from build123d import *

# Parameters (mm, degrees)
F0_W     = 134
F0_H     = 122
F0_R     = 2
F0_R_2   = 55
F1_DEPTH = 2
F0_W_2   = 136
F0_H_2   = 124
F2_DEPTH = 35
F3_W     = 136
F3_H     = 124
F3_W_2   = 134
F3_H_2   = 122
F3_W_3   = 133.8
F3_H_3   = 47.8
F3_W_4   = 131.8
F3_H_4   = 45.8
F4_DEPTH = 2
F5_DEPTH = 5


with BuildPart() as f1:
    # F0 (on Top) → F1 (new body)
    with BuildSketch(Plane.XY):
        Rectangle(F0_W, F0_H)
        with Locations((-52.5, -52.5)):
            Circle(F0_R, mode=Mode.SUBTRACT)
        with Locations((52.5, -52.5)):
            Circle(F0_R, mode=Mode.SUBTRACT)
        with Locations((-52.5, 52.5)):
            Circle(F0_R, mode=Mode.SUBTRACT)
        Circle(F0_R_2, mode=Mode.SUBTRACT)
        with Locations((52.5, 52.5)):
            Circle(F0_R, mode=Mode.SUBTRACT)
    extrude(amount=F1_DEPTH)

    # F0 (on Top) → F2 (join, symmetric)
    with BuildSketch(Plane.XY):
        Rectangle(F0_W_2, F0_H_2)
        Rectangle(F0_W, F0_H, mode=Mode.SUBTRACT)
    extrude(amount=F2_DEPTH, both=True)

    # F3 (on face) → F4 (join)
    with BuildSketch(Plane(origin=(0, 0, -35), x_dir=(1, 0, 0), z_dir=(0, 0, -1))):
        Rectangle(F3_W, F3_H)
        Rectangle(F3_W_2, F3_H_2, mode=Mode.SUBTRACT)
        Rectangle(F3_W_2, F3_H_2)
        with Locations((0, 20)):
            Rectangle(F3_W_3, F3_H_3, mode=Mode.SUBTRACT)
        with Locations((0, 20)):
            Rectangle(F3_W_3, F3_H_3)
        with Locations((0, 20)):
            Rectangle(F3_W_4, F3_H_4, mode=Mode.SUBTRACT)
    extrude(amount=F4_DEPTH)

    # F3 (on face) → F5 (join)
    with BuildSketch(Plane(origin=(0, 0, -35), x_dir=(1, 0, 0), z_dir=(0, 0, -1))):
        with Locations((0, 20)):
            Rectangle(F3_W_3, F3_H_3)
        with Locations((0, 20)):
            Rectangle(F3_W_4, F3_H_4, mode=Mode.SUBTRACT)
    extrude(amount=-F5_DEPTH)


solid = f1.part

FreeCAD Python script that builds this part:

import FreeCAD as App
import Part
import Sketcher
from FreeCAD import Vector
Q = App.Units.Quantity


def add_polygon(sketch, points):
    """Adds a closed chain of lines whose ends are joined by coincident constraints."""
    first, n = sketch.GeometryCount, len(points)
    for a, b in zip(points, points[1:] + points[:1]):
        sketch.addGeometry(Part.LineSegment(App.Vector(*a, 0), App.Vector(*b, 0)), False)
    for i in range(n):
        sketch.addConstraint(Sketcher.Constraint("Coincident", first + i, 2, first + (i + 1) % n, 1))

doc = App.newDocument("Part")
params = doc.addObject("Spreadsheet::Sheet", "Params")
for row, (alias, value) in enumerate([
    ("sketch1_diameter", "4 mm"),
    ("sketch1_diameter2", "110 mm"),
    ("sketch1_width", "134 mm"),
    ("sketch1_height", "122 mm"),
    ("pad1_length", "2 mm"),
    ("sketch2_width", "136 mm"),
    ("sketch2_width2", "134 mm"),
    ("sketch2_height", "124 mm"),
    ("sketch2_height2", "122 mm"),
    ("pad2_length", "70 mm"),
    ("sketch3_width", "136 mm"),
    ("sketch3_height", "124 mm"),
    ("sketch3_width2", "131.8 mm"),
    ("sketch3_height2", "45.8 mm"),
    ("pad3_length", "2 mm"),
    ("sketch4_width", "133.8 mm"),
    ("sketch4_width2", "131.8 mm"),
    ("sketch4_height", "47.8 mm"),
    ("sketch4_height2", "45.8 mm"),
    ("pad4_length", "5 mm"),
], start=1):
    params.set(f"A{row}", alias)
    params.set(f"B{row}", "=" + value)
    params.setAlias(f"B{row}", alias)

body = doc.addObject("PartDesign::Body", "Body")

sketch1 = body.newObject("Sketcher::SketchObject", "Sketch")
sketch1.AttachmentSupport = (doc.getObject("XY_Plane"), [""])
sketch1.MapMode = "FlatFace"
add_polygon(sketch1, [(-67, 61), (-67, -61), (67, -61), (67, 61)])
sketch1.addGeometry(Part.Circle(Vector(-52.5, -52.5, 0), Vector(0, 0, 1), 2), False)
sketch1.addGeometry(Part.Circle(Vector(52.5, -52.5, 0), Vector(0, 0, 1), 2), False)
sketch1.addGeometry(Part.Circle(Vector(-52.5, 52.5, 0), Vector(0, 0, 1), 2), False)
sketch1.addGeometry(Part.Circle(Vector(0, 0, 0), Vector(0, 0, 1), 55), False)
sketch1.addGeometry(Part.Circle(Vector(52.5, 52.5, 0), Vector(0, 0, 1), 2), False)
sketch1.addConstraint([
    Sketcher.Constraint("Vertical", 0),
    Sketcher.Constraint("Horizontal", 1),
    Sketcher.Constraint("Vertical", 2),
    Sketcher.Constraint("Horizontal", 3),
    Sketcher.Constraint("Coincident", 7, 3, -1, 1),
    Sketcher.Constraint("Equal", 4, 5),
    Sketcher.Constraint("Equal", 5, 6),
    Sketcher.Constraint("Equal", 6, 8),
    Sketcher.Constraint("Symmetric", 5, 3, 6, 3, -1, 1),
    Sketcher.Constraint("Symmetric", 4, 3, 8, 3, -1, 1),
    Sketcher.Constraint("Symmetric", 0, 2, 2, 2, -1, 1),
    Sketcher.Constraint("Symmetric", 4, 3, 5, 3, -2),
    Sketcher.Constraint("Diameter", 4, Q("4 mm")),
    Sketcher.Constraint("Diameter", 7, Q("110 mm")),
    Sketcher.Constraint("DistanceX", 1, 1, 1, 2, Q("134 mm")),
    Sketcher.Constraint("DistanceY", 0, 2, 0, 1, Q("122 mm")),
    Sketcher.Constraint("DistanceX", 4, 3, 5, 3, Q("105 mm")),
    Sketcher.Constraint("DistanceY", 4, 3, 6, 3, Q("105 mm")),
])
sketch1.setExpression("Constraints[16]", "Params.sketch1_diameter")
sketch1.setExpression("Constraints[17]", "Params.sketch1_diameter2")
sketch1.setExpression("Constraints[18]", "Params.sketch1_width")
sketch1.setExpression("Constraints[19]", "Params.sketch1_height")
pad1 = body.newObject("PartDesign::Pad", "Pad")
pad1.Profile = sketch1
pad1.setExpression("Length", "Params.pad1_length")

sketch2 = body.newObject("Sketcher::SketchObject", "Sketch001")
sketch2.AttachmentSupport = (doc.getObject("XY_Plane"), [""])
sketch2.MapMode = "FlatFace"
add_polygon(sketch2, [(-68, 62), (-68, -62), (68, -62), (68, 62)])
add_polygon(sketch2, [(67, -61), (-67, -61), (-67, 61), (67, 61)])
sketch2.addConstraint([
    Sketcher.Constraint("Vertical", 0),
    Sketcher.Constraint("Horizontal", 1),
    Sketcher.Constraint("Vertical", 2),
    Sketcher.Constraint("Horizontal", 3),
    Sketcher.Constraint("Horizontal", 4),
    Sketcher.Constraint("Vertical", 5),
    Sketcher.Constraint("Horizontal", 6),
    Sketcher.Constraint("Vertical", 7),
    Sketcher.Constraint("Symmetric", 0, 2, 2, 2, -1, 1),
    Sketcher.Constraint("Symmetric", 4, 2, 6, 2, -1, 1),
    Sketcher.Constraint("DistanceX", 1, 1, 1, 2, Q("136 mm")),
    Sketcher.Constraint("DistanceX", 4, 2, 4, 1, Q("134 mm")),
    Sketcher.Constraint("DistanceY", 0, 2, 0, 1, Q("124 mm")),
    Sketcher.Constraint("DistanceY", 5, 1, 5, 2, Q("122 mm")),
])
sketch2.setExpression("Constraints[18]", "Params.sketch2_width")
sketch2.setExpression("Constraints[19]", "Params.sketch2_width2")
sketch2.setExpression("Constraints[20]", "Params.sketch2_height")
sketch2.setExpression("Constraints[21]", "Params.sketch2_height2")
pad2 = body.newObject("PartDesign::Pad", "Pad001")
pad2.Profile = sketch2
pad2.setExpression("Length", "Params.pad2_length")
pad2.Midplane = True

sketch3 = body.newObject("Sketcher::SketchObject", "Sketch002")
sketch3.AttachmentSupport = (doc.getObject("XY_Plane"), [""])
sketch3.MapMode = "FlatFace"
sketch3.AttachmentOffset = App.Placement(Vector(0, 0, -35), App.Rotation())
add_polygon(sketch3, [(-68, -62), (-68, 62), (68, 62), (68, -62)])
add_polygon(sketch3, [(66, 3), (-66, 3), (-66, -43), (66, -43)])
sketch3.addConstraint([
    Sketcher.Constraint("Vertical", 0),
    Sketcher.Constraint("Horizontal", 1),
    Sketcher.Constraint("Vertical", 2),
    Sketcher.Constraint("Horizontal", 3),
    Sketcher.Constraint("Horizontal", 4),
    Sketcher.Constraint("Vertical", 5),
    Sketcher.Constraint("Horizontal", 6),
    Sketcher.Constraint("Vertical", 7),
    Sketcher.Constraint("Symmetric", 0, 2, 2, 2, -1, 1),
    Sketcher.Constraint("DistanceX", 1, 1, 1, 2, Q("136 mm")),
    Sketcher.Constraint("DistanceY", 0, 1, 0, 2, Q("124 mm")),
    Sketcher.Constraint("DistanceX", 4, 2, 4, 1, Q("131.8 mm")),
    Sketcher.Constraint("DistanceY", 5, 2, 5, 1, Q("45.8 mm")),
    Sketcher.Constraint("DistanceX", 4, 2, -1, 1, Q("65.9 mm")),
    Sketcher.Constraint("DistanceY", -1, 1, 4, 2, Q("2.9 mm")),
])
sketch3.setExpression("Constraints[17]", "Params.sketch3_width")
sketch3.setExpression("Constraints[18]", "Params.sketch3_height")
sketch3.setExpression("Constraints[19]", "Params.sketch3_width2")
sketch3.setExpression("Constraints[20]", "Params.sketch3_height2")
pad3 = body.newObject("PartDesign::Pad", "Pad002")
pad3.Profile = sketch3
pad3.setExpression("Length", "Params.pad3_length")
pad3.Reversed = True

sketch4 = body.newObject("Sketcher::SketchObject", "Sketch003")
sketch4.AttachmentSupport = (doc.getObject("XY_Plane"), [""])
sketch4.MapMode = "FlatFace"
sketch4.AttachmentOffset = App.Placement(Vector(0, 0, -35), App.Rotation())
add_polygon(sketch4, [(-67, -44), (-67, 4), (67, 4), (67, -44)])
add_polygon(sketch4, [(66, 3), (-66, 3), (-66, -43), (66, -43)])
sketch4.addConstraint([
    Sketcher.Constraint("Vertical", 0),
    Sketcher.Constraint("Horizontal", 1),
    Sketcher.Constraint("Vertical", 2),
    Sketcher.Constraint("Horizontal", 3),
    Sketcher.Constraint("Horizontal", 4),
    Sketcher.Constraint("Vertical", 5),
    Sketcher.Constraint("Horizontal", 6),
    Sketcher.Constraint("Vertical", 7),
    Sketcher.Constraint("DistanceX", 1, 1, 1, 2, Q("133.8 mm")),
    Sketcher.Constraint("DistanceX", 4, 2, 4, 1, Q("131.8 mm")),
    Sketcher.Constraint("DistanceY", 0, 1, 0, 2, Q("47.8 mm")),
    Sketcher.Constraint("DistanceY", 5, 2, 5, 1, Q("45.8 mm")),
    Sketcher.Constraint("DistanceX", 0, 2, 4, 2, Q("1 mm")),
    Sketcher.Constraint("DistanceY", 4, 2, 0, 2, Q("1 mm")),
    Sketcher.Constraint("DistanceX", 0, 2, -1, 1, Q("66.9 mm")),
    Sketcher.Constraint("DistanceY", -1, 1, 0, 2, Q("3.9 mm")),
])
sketch4.setExpression("Constraints[16]", "Params.sketch4_width")
sketch4.setExpression("Constraints[17]", "Params.sketch4_width2")
sketch4.setExpression("Constraints[18]", "Params.sketch4_height")
sketch4.setExpression("Constraints[19]", "Params.sketch4_height2")
pad4 = body.newObject("PartDesign::Pad", "Pad003")
pad4.Profile = sketch4
pad4.setExpression("Length", "Params.pad4_length")

doc.recompute()
